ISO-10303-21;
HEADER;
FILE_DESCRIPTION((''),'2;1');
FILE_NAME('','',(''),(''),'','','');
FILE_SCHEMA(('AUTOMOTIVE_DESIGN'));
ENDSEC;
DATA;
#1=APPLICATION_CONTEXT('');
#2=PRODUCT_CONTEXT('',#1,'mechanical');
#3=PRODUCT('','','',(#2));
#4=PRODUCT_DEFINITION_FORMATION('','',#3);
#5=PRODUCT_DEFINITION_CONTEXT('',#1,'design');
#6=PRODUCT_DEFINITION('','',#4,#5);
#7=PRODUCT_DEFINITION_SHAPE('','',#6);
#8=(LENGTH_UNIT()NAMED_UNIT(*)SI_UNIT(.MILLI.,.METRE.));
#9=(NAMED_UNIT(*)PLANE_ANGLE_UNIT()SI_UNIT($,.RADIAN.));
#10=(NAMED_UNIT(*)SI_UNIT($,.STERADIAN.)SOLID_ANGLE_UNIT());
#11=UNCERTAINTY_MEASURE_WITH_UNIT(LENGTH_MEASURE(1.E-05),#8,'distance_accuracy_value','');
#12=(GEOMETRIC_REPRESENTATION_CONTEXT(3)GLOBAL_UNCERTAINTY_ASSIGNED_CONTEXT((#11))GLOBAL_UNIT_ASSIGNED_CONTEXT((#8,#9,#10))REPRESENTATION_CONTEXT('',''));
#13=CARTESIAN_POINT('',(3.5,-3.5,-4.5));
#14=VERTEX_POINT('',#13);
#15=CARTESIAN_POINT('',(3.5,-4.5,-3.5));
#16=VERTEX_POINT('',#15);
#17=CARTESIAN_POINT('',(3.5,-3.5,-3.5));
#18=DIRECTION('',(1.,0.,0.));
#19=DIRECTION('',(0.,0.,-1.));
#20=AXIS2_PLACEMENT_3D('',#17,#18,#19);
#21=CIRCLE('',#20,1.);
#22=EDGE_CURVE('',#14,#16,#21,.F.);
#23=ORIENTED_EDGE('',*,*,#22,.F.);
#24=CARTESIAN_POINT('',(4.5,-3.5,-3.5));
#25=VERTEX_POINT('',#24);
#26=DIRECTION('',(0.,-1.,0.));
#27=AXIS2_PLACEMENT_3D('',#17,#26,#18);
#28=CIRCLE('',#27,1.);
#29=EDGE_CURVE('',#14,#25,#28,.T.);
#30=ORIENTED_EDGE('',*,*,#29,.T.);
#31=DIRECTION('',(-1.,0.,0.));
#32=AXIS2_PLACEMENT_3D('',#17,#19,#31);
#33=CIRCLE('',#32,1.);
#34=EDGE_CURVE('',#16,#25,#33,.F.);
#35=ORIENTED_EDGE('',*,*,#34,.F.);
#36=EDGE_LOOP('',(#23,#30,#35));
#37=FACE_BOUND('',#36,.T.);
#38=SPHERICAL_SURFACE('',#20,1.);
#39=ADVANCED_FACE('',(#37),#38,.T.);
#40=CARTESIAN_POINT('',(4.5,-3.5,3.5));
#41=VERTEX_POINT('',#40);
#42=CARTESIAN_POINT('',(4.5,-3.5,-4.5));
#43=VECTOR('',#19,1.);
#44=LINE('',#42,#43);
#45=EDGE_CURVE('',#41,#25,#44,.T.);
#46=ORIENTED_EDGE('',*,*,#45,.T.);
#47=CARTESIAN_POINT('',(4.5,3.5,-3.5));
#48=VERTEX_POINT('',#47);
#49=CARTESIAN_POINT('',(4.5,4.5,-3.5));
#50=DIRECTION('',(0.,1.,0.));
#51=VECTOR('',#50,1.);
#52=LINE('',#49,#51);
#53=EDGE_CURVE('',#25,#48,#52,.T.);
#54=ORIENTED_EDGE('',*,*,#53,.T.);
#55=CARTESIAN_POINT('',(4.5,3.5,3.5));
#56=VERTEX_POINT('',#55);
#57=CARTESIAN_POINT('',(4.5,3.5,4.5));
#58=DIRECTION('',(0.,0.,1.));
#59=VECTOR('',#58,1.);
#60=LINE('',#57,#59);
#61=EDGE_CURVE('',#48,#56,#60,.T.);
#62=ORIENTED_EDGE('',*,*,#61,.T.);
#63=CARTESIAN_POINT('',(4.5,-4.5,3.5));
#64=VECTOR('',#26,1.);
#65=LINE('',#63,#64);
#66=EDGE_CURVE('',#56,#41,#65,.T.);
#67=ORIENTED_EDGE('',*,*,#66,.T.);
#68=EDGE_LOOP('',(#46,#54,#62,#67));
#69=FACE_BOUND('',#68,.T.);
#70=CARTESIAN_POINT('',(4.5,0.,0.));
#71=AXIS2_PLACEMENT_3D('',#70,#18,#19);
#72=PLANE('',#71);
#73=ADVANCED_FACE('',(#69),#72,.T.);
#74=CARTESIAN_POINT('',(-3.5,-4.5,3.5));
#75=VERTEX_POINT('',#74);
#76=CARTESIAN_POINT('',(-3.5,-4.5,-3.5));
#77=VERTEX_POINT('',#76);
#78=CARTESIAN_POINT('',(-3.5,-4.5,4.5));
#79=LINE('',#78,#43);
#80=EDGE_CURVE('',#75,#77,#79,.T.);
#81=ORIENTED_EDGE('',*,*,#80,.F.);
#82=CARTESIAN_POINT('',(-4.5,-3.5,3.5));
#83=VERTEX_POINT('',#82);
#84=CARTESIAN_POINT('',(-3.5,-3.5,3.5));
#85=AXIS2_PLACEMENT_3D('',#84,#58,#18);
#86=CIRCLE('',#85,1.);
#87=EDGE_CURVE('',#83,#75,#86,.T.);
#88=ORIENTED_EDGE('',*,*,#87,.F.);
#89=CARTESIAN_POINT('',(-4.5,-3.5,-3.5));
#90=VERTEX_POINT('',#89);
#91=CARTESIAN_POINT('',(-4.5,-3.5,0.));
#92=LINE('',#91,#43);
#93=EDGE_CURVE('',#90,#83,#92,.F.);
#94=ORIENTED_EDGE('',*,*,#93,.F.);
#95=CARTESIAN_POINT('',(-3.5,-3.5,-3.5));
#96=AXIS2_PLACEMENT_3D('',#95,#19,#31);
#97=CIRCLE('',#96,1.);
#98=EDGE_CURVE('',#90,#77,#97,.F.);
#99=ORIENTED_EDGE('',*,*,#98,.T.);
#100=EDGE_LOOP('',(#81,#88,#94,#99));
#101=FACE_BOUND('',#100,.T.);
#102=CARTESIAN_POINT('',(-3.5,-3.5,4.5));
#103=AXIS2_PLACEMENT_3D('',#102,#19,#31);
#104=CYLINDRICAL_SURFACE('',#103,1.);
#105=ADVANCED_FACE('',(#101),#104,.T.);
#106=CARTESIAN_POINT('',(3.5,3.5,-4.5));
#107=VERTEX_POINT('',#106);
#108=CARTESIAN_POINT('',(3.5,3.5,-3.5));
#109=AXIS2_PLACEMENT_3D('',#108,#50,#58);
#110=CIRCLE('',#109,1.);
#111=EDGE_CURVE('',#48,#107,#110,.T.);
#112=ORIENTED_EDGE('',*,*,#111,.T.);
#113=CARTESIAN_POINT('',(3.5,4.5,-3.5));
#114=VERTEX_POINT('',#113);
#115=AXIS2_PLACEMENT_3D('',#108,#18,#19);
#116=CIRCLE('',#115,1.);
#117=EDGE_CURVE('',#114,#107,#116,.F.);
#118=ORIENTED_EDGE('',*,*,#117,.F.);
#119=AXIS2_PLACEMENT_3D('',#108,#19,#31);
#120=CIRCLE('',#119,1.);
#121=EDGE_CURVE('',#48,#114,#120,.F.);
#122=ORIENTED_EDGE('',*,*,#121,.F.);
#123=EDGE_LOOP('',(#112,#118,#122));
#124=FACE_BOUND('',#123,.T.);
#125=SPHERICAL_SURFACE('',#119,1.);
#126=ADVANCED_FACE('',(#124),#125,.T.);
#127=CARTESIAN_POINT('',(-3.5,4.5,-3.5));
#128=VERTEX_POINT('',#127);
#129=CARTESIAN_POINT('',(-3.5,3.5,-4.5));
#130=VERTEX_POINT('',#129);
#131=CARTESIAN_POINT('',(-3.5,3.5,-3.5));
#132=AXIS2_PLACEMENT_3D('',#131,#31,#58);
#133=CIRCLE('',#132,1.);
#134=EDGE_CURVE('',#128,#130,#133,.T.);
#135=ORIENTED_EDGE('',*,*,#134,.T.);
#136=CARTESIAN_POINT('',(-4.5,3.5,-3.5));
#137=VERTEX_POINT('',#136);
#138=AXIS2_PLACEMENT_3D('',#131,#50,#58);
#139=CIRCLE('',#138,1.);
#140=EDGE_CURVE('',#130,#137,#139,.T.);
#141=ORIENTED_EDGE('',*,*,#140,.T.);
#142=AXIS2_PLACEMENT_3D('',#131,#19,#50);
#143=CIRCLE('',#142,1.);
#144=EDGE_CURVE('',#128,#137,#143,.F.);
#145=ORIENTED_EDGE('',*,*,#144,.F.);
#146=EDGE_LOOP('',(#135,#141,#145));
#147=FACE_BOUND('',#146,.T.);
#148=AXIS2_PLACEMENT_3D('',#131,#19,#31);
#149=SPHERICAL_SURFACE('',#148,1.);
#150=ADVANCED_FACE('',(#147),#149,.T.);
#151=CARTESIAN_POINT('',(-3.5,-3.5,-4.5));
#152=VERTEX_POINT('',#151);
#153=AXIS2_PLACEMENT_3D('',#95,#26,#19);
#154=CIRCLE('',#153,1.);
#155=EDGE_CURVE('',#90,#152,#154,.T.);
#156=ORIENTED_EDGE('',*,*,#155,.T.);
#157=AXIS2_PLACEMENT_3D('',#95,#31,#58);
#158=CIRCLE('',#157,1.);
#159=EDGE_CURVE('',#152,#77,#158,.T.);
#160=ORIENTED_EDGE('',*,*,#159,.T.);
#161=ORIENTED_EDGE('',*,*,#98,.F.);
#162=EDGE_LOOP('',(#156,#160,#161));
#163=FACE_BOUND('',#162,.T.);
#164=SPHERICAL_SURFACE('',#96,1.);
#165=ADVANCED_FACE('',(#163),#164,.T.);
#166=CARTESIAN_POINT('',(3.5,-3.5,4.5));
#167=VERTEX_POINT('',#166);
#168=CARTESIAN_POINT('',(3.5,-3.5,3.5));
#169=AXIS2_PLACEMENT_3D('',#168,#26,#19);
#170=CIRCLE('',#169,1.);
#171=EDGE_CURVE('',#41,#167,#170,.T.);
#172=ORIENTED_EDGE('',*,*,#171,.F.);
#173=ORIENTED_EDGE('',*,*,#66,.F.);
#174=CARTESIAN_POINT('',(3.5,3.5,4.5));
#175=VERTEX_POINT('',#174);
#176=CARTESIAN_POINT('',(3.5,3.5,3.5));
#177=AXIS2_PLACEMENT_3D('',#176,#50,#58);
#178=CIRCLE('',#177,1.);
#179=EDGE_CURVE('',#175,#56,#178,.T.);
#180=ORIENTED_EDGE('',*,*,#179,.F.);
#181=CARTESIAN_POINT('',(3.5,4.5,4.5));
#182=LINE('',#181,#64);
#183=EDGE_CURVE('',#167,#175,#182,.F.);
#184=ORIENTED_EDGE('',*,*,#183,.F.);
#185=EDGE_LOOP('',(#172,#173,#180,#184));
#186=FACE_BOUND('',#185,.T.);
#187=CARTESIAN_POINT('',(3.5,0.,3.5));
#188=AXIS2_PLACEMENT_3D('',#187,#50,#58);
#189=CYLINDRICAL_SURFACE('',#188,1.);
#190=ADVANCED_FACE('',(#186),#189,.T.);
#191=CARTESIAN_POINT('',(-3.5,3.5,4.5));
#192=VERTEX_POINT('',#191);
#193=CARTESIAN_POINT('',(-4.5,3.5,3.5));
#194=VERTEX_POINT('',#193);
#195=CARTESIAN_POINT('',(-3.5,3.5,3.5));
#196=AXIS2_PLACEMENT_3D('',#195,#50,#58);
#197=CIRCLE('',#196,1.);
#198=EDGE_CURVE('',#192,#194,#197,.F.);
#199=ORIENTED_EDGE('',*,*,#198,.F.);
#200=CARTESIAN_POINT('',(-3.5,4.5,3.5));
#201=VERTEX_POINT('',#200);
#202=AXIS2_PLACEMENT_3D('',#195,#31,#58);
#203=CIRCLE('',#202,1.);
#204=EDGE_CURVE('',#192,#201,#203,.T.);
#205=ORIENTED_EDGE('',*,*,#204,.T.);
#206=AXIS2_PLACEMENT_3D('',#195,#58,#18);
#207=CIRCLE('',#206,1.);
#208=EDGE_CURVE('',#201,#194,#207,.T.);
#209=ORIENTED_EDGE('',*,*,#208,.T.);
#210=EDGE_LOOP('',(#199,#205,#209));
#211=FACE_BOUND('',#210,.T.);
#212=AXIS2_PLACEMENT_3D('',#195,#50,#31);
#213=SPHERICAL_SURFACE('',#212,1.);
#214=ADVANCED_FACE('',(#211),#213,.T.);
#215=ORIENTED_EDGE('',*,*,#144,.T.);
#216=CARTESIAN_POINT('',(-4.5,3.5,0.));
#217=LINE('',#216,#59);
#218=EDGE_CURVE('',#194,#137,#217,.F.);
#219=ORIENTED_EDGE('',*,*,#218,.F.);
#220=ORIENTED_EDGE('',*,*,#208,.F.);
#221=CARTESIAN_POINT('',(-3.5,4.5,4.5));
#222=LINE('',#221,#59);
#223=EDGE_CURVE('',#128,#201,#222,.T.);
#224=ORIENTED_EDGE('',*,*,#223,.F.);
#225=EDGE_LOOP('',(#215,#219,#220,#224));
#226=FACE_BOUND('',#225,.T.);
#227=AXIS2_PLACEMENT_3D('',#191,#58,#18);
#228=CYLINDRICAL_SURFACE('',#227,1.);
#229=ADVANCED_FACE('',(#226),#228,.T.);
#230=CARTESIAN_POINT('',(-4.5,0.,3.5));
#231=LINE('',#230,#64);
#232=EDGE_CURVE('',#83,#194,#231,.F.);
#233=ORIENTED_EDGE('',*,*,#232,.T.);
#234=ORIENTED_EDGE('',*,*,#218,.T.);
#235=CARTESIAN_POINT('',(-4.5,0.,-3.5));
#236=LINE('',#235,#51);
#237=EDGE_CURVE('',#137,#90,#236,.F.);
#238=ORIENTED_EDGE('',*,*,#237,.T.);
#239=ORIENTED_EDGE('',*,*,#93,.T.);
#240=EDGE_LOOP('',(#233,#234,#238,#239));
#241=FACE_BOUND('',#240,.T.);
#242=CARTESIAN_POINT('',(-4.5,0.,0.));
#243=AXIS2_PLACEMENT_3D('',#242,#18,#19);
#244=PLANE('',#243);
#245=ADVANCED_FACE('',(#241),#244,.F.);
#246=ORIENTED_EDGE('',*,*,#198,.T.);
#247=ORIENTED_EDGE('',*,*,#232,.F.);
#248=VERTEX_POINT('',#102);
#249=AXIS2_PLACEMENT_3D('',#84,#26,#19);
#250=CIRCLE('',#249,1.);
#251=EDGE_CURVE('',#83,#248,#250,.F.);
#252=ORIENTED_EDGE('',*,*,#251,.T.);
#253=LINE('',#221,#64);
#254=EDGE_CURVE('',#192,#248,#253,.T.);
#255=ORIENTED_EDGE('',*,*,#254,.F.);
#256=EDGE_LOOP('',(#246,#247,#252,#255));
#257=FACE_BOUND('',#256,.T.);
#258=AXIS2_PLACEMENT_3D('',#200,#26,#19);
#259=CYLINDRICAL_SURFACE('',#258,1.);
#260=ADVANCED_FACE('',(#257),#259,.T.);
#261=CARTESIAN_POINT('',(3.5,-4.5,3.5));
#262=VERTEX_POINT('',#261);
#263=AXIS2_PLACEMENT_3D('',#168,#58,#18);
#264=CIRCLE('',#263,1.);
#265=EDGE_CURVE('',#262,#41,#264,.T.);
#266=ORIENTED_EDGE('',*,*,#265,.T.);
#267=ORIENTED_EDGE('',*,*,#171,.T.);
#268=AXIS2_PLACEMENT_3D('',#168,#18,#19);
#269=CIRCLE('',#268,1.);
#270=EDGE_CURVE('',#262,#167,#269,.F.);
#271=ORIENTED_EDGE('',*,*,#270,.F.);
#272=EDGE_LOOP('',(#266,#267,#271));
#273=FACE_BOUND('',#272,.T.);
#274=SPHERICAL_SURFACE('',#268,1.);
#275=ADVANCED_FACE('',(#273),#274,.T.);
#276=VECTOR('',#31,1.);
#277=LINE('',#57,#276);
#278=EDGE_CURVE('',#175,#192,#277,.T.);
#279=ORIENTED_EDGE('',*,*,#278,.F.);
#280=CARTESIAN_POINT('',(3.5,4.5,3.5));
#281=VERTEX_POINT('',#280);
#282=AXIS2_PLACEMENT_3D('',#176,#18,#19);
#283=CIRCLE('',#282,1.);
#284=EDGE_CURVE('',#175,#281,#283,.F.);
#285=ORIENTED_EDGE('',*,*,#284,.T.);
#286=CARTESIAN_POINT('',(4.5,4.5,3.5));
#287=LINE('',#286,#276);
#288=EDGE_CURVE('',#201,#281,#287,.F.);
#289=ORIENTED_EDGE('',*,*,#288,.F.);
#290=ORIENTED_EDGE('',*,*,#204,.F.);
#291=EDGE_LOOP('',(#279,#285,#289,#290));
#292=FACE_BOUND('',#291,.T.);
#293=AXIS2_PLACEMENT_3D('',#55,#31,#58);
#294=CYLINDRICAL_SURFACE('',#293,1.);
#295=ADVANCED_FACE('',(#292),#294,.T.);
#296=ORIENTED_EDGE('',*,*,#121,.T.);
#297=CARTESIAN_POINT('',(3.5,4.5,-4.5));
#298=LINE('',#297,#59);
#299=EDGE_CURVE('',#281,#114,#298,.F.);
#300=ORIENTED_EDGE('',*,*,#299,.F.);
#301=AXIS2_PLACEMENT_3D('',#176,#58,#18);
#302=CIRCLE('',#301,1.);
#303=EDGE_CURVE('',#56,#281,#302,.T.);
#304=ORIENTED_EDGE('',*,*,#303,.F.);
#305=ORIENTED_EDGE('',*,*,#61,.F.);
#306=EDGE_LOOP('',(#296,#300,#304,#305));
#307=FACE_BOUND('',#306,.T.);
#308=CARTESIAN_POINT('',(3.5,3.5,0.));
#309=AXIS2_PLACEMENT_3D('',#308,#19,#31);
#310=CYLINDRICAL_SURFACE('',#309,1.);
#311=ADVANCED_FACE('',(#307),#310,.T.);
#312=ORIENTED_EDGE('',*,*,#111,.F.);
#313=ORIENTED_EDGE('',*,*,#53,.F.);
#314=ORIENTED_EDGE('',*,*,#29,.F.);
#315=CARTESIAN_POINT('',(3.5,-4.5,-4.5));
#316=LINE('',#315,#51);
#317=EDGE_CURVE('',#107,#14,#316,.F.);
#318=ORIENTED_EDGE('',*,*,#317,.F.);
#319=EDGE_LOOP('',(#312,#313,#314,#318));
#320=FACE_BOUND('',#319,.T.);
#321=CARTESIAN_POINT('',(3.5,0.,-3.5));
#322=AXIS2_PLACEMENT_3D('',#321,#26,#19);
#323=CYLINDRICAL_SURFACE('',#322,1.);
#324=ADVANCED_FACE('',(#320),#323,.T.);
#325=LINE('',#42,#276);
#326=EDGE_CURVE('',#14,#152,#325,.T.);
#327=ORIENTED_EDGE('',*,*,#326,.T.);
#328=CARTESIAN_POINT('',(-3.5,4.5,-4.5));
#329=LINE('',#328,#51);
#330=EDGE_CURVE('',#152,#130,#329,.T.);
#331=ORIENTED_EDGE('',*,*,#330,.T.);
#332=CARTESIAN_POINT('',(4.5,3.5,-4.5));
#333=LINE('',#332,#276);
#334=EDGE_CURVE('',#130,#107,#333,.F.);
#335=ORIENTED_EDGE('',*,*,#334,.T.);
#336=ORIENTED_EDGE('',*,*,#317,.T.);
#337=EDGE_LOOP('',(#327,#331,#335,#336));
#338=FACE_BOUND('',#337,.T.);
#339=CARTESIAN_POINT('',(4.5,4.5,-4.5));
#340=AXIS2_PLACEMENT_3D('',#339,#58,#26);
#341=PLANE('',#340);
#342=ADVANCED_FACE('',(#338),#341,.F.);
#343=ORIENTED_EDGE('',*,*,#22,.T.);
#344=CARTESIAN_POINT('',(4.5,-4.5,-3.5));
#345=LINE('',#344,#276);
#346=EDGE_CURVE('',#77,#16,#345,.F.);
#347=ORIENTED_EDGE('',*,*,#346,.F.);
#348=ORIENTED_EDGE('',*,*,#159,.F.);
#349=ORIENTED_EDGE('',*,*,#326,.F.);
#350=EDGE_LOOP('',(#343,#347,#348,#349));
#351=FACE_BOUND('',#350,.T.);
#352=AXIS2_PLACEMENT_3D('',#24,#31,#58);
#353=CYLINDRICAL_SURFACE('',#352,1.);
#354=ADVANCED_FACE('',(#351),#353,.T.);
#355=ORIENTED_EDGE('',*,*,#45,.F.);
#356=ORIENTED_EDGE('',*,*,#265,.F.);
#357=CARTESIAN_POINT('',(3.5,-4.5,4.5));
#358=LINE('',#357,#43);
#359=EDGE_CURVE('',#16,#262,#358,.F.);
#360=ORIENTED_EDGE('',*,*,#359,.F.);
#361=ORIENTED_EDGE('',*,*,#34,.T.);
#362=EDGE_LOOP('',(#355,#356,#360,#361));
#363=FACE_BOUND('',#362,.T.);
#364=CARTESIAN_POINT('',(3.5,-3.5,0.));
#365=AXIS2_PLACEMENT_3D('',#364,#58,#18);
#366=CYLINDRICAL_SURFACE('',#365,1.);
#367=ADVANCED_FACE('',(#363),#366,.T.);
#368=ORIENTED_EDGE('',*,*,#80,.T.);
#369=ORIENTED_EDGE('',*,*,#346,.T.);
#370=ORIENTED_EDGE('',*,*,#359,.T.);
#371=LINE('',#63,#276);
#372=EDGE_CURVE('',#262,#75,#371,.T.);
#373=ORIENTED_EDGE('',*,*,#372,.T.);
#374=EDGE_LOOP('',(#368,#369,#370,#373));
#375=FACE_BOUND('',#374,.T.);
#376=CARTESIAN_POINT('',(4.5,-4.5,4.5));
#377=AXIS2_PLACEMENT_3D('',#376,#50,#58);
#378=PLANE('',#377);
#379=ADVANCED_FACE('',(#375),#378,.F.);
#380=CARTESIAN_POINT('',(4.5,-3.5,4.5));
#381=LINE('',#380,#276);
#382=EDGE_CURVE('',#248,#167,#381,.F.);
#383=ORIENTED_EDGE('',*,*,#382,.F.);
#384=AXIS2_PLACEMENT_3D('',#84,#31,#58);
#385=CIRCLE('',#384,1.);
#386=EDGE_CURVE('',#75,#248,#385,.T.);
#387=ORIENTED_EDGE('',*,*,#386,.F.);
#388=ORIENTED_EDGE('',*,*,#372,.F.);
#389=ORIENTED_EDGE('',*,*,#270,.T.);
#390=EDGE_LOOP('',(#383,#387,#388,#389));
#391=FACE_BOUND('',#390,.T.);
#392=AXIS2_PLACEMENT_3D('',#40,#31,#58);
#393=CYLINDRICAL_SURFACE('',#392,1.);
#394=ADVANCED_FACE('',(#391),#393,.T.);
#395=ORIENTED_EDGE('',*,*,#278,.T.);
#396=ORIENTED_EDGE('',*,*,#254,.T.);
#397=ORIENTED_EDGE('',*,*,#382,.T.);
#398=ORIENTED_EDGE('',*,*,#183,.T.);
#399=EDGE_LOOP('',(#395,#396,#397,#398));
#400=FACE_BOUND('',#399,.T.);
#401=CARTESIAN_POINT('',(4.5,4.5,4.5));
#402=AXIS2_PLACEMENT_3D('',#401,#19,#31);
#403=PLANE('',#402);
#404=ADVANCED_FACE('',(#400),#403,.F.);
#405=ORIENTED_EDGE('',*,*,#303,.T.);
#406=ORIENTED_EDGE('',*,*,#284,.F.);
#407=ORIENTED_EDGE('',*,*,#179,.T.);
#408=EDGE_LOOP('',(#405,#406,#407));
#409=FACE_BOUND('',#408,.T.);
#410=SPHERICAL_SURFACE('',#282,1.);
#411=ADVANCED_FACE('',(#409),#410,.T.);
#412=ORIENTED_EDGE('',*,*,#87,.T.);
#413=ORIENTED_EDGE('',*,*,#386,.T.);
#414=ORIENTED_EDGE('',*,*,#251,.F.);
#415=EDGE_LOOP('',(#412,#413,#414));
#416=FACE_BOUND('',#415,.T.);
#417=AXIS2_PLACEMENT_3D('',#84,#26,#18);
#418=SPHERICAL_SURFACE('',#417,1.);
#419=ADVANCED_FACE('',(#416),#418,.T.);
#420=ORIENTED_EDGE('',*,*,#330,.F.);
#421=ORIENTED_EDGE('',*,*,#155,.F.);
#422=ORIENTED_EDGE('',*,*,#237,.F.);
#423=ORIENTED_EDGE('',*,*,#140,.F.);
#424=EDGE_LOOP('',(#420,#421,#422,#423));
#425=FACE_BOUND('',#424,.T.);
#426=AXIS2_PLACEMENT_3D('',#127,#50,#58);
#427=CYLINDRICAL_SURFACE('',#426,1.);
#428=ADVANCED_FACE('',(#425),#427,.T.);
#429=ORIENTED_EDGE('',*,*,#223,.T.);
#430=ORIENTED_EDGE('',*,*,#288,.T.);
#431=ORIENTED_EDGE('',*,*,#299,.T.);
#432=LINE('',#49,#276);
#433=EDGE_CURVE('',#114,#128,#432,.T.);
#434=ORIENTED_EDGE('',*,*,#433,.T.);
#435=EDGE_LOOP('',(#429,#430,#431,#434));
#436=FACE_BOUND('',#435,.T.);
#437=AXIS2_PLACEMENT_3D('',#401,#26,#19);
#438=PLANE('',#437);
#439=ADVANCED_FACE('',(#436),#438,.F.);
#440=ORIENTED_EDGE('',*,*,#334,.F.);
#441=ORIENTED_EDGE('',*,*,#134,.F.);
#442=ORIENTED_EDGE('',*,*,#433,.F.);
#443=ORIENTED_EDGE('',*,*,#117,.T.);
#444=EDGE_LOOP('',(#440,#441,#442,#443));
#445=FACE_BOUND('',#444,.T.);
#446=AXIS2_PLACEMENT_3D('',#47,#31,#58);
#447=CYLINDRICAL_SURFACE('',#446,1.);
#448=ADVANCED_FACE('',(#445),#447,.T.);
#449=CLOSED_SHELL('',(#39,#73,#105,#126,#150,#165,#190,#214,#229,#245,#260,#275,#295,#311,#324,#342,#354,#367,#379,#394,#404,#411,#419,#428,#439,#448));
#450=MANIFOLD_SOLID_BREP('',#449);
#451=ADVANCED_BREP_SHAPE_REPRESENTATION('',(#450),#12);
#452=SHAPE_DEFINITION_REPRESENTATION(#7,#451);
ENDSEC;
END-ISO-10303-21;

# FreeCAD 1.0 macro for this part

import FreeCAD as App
import Part
import Sketcher
from FreeCAD import Vector
Q = App.Units.Quantity


def add_polygon(sketch, points):
    """Adds a closed chain of lines whose ends are joined by coincident constraints."""
    first, n = sketch.GeometryCount, len(points)
    for a, b in zip(points, points[1:] + points[:1]):
        sketch.addGeometry(Part.LineSegment(App.Vector(*a, 0), App.Vector(*b, 0)), False)
    for i in range(n):
        sketch.addConstraint(Sketcher.Constraint("Coincident", first + i, 2, first + (i + 1) % n, 1))

doc = App.newDocument("Part")
body = doc.addObject("PartDesign::Body", "Body")

# Sketch on YZ plane
sketch1 = body.newObject("Sketcher::SketchObject", "Sketch")
sketch1.AttachmentSupport = (doc.getObject("YZ_Plane"), [""])
sketch1.MapMode = "FlatFace"
add_polygon(sketch1, [(4, 4), (-4, 4), (-4, -4), (4, -4)])  # lines 0-3
sketch1.addConstraint([
    Sketcher.Constraint("Horizontal", 0),
    Sketcher.Constraint("Vertical", 1),
    Sketcher.Constraint("Horizontal", 2),
    Sketcher.Constraint("Vertical", 3),
    Sketcher.Constraint("Symmetric", 0, 2, 2, 2, -1, 1),
    Sketcher.Constraint("Equal", 2, 1),
    Sketcher.Constraint("DistanceX", 0, 2, 0, 1, Q("9 mm")),
])
pad1 = body.newObject("PartDesign::Pad", "Pad")
pad1.Profile = sketch1
pad1.Length = 9
pad1.Midplane = True
doc.recompute()

fillet = body.newObject("PartDesign::Fillet", "Fillet")
fillet.Base = (pad1, ["Edge1"])
fillet.UseAllEdges = True
fillet.Radius = 1

doc.recompute()
